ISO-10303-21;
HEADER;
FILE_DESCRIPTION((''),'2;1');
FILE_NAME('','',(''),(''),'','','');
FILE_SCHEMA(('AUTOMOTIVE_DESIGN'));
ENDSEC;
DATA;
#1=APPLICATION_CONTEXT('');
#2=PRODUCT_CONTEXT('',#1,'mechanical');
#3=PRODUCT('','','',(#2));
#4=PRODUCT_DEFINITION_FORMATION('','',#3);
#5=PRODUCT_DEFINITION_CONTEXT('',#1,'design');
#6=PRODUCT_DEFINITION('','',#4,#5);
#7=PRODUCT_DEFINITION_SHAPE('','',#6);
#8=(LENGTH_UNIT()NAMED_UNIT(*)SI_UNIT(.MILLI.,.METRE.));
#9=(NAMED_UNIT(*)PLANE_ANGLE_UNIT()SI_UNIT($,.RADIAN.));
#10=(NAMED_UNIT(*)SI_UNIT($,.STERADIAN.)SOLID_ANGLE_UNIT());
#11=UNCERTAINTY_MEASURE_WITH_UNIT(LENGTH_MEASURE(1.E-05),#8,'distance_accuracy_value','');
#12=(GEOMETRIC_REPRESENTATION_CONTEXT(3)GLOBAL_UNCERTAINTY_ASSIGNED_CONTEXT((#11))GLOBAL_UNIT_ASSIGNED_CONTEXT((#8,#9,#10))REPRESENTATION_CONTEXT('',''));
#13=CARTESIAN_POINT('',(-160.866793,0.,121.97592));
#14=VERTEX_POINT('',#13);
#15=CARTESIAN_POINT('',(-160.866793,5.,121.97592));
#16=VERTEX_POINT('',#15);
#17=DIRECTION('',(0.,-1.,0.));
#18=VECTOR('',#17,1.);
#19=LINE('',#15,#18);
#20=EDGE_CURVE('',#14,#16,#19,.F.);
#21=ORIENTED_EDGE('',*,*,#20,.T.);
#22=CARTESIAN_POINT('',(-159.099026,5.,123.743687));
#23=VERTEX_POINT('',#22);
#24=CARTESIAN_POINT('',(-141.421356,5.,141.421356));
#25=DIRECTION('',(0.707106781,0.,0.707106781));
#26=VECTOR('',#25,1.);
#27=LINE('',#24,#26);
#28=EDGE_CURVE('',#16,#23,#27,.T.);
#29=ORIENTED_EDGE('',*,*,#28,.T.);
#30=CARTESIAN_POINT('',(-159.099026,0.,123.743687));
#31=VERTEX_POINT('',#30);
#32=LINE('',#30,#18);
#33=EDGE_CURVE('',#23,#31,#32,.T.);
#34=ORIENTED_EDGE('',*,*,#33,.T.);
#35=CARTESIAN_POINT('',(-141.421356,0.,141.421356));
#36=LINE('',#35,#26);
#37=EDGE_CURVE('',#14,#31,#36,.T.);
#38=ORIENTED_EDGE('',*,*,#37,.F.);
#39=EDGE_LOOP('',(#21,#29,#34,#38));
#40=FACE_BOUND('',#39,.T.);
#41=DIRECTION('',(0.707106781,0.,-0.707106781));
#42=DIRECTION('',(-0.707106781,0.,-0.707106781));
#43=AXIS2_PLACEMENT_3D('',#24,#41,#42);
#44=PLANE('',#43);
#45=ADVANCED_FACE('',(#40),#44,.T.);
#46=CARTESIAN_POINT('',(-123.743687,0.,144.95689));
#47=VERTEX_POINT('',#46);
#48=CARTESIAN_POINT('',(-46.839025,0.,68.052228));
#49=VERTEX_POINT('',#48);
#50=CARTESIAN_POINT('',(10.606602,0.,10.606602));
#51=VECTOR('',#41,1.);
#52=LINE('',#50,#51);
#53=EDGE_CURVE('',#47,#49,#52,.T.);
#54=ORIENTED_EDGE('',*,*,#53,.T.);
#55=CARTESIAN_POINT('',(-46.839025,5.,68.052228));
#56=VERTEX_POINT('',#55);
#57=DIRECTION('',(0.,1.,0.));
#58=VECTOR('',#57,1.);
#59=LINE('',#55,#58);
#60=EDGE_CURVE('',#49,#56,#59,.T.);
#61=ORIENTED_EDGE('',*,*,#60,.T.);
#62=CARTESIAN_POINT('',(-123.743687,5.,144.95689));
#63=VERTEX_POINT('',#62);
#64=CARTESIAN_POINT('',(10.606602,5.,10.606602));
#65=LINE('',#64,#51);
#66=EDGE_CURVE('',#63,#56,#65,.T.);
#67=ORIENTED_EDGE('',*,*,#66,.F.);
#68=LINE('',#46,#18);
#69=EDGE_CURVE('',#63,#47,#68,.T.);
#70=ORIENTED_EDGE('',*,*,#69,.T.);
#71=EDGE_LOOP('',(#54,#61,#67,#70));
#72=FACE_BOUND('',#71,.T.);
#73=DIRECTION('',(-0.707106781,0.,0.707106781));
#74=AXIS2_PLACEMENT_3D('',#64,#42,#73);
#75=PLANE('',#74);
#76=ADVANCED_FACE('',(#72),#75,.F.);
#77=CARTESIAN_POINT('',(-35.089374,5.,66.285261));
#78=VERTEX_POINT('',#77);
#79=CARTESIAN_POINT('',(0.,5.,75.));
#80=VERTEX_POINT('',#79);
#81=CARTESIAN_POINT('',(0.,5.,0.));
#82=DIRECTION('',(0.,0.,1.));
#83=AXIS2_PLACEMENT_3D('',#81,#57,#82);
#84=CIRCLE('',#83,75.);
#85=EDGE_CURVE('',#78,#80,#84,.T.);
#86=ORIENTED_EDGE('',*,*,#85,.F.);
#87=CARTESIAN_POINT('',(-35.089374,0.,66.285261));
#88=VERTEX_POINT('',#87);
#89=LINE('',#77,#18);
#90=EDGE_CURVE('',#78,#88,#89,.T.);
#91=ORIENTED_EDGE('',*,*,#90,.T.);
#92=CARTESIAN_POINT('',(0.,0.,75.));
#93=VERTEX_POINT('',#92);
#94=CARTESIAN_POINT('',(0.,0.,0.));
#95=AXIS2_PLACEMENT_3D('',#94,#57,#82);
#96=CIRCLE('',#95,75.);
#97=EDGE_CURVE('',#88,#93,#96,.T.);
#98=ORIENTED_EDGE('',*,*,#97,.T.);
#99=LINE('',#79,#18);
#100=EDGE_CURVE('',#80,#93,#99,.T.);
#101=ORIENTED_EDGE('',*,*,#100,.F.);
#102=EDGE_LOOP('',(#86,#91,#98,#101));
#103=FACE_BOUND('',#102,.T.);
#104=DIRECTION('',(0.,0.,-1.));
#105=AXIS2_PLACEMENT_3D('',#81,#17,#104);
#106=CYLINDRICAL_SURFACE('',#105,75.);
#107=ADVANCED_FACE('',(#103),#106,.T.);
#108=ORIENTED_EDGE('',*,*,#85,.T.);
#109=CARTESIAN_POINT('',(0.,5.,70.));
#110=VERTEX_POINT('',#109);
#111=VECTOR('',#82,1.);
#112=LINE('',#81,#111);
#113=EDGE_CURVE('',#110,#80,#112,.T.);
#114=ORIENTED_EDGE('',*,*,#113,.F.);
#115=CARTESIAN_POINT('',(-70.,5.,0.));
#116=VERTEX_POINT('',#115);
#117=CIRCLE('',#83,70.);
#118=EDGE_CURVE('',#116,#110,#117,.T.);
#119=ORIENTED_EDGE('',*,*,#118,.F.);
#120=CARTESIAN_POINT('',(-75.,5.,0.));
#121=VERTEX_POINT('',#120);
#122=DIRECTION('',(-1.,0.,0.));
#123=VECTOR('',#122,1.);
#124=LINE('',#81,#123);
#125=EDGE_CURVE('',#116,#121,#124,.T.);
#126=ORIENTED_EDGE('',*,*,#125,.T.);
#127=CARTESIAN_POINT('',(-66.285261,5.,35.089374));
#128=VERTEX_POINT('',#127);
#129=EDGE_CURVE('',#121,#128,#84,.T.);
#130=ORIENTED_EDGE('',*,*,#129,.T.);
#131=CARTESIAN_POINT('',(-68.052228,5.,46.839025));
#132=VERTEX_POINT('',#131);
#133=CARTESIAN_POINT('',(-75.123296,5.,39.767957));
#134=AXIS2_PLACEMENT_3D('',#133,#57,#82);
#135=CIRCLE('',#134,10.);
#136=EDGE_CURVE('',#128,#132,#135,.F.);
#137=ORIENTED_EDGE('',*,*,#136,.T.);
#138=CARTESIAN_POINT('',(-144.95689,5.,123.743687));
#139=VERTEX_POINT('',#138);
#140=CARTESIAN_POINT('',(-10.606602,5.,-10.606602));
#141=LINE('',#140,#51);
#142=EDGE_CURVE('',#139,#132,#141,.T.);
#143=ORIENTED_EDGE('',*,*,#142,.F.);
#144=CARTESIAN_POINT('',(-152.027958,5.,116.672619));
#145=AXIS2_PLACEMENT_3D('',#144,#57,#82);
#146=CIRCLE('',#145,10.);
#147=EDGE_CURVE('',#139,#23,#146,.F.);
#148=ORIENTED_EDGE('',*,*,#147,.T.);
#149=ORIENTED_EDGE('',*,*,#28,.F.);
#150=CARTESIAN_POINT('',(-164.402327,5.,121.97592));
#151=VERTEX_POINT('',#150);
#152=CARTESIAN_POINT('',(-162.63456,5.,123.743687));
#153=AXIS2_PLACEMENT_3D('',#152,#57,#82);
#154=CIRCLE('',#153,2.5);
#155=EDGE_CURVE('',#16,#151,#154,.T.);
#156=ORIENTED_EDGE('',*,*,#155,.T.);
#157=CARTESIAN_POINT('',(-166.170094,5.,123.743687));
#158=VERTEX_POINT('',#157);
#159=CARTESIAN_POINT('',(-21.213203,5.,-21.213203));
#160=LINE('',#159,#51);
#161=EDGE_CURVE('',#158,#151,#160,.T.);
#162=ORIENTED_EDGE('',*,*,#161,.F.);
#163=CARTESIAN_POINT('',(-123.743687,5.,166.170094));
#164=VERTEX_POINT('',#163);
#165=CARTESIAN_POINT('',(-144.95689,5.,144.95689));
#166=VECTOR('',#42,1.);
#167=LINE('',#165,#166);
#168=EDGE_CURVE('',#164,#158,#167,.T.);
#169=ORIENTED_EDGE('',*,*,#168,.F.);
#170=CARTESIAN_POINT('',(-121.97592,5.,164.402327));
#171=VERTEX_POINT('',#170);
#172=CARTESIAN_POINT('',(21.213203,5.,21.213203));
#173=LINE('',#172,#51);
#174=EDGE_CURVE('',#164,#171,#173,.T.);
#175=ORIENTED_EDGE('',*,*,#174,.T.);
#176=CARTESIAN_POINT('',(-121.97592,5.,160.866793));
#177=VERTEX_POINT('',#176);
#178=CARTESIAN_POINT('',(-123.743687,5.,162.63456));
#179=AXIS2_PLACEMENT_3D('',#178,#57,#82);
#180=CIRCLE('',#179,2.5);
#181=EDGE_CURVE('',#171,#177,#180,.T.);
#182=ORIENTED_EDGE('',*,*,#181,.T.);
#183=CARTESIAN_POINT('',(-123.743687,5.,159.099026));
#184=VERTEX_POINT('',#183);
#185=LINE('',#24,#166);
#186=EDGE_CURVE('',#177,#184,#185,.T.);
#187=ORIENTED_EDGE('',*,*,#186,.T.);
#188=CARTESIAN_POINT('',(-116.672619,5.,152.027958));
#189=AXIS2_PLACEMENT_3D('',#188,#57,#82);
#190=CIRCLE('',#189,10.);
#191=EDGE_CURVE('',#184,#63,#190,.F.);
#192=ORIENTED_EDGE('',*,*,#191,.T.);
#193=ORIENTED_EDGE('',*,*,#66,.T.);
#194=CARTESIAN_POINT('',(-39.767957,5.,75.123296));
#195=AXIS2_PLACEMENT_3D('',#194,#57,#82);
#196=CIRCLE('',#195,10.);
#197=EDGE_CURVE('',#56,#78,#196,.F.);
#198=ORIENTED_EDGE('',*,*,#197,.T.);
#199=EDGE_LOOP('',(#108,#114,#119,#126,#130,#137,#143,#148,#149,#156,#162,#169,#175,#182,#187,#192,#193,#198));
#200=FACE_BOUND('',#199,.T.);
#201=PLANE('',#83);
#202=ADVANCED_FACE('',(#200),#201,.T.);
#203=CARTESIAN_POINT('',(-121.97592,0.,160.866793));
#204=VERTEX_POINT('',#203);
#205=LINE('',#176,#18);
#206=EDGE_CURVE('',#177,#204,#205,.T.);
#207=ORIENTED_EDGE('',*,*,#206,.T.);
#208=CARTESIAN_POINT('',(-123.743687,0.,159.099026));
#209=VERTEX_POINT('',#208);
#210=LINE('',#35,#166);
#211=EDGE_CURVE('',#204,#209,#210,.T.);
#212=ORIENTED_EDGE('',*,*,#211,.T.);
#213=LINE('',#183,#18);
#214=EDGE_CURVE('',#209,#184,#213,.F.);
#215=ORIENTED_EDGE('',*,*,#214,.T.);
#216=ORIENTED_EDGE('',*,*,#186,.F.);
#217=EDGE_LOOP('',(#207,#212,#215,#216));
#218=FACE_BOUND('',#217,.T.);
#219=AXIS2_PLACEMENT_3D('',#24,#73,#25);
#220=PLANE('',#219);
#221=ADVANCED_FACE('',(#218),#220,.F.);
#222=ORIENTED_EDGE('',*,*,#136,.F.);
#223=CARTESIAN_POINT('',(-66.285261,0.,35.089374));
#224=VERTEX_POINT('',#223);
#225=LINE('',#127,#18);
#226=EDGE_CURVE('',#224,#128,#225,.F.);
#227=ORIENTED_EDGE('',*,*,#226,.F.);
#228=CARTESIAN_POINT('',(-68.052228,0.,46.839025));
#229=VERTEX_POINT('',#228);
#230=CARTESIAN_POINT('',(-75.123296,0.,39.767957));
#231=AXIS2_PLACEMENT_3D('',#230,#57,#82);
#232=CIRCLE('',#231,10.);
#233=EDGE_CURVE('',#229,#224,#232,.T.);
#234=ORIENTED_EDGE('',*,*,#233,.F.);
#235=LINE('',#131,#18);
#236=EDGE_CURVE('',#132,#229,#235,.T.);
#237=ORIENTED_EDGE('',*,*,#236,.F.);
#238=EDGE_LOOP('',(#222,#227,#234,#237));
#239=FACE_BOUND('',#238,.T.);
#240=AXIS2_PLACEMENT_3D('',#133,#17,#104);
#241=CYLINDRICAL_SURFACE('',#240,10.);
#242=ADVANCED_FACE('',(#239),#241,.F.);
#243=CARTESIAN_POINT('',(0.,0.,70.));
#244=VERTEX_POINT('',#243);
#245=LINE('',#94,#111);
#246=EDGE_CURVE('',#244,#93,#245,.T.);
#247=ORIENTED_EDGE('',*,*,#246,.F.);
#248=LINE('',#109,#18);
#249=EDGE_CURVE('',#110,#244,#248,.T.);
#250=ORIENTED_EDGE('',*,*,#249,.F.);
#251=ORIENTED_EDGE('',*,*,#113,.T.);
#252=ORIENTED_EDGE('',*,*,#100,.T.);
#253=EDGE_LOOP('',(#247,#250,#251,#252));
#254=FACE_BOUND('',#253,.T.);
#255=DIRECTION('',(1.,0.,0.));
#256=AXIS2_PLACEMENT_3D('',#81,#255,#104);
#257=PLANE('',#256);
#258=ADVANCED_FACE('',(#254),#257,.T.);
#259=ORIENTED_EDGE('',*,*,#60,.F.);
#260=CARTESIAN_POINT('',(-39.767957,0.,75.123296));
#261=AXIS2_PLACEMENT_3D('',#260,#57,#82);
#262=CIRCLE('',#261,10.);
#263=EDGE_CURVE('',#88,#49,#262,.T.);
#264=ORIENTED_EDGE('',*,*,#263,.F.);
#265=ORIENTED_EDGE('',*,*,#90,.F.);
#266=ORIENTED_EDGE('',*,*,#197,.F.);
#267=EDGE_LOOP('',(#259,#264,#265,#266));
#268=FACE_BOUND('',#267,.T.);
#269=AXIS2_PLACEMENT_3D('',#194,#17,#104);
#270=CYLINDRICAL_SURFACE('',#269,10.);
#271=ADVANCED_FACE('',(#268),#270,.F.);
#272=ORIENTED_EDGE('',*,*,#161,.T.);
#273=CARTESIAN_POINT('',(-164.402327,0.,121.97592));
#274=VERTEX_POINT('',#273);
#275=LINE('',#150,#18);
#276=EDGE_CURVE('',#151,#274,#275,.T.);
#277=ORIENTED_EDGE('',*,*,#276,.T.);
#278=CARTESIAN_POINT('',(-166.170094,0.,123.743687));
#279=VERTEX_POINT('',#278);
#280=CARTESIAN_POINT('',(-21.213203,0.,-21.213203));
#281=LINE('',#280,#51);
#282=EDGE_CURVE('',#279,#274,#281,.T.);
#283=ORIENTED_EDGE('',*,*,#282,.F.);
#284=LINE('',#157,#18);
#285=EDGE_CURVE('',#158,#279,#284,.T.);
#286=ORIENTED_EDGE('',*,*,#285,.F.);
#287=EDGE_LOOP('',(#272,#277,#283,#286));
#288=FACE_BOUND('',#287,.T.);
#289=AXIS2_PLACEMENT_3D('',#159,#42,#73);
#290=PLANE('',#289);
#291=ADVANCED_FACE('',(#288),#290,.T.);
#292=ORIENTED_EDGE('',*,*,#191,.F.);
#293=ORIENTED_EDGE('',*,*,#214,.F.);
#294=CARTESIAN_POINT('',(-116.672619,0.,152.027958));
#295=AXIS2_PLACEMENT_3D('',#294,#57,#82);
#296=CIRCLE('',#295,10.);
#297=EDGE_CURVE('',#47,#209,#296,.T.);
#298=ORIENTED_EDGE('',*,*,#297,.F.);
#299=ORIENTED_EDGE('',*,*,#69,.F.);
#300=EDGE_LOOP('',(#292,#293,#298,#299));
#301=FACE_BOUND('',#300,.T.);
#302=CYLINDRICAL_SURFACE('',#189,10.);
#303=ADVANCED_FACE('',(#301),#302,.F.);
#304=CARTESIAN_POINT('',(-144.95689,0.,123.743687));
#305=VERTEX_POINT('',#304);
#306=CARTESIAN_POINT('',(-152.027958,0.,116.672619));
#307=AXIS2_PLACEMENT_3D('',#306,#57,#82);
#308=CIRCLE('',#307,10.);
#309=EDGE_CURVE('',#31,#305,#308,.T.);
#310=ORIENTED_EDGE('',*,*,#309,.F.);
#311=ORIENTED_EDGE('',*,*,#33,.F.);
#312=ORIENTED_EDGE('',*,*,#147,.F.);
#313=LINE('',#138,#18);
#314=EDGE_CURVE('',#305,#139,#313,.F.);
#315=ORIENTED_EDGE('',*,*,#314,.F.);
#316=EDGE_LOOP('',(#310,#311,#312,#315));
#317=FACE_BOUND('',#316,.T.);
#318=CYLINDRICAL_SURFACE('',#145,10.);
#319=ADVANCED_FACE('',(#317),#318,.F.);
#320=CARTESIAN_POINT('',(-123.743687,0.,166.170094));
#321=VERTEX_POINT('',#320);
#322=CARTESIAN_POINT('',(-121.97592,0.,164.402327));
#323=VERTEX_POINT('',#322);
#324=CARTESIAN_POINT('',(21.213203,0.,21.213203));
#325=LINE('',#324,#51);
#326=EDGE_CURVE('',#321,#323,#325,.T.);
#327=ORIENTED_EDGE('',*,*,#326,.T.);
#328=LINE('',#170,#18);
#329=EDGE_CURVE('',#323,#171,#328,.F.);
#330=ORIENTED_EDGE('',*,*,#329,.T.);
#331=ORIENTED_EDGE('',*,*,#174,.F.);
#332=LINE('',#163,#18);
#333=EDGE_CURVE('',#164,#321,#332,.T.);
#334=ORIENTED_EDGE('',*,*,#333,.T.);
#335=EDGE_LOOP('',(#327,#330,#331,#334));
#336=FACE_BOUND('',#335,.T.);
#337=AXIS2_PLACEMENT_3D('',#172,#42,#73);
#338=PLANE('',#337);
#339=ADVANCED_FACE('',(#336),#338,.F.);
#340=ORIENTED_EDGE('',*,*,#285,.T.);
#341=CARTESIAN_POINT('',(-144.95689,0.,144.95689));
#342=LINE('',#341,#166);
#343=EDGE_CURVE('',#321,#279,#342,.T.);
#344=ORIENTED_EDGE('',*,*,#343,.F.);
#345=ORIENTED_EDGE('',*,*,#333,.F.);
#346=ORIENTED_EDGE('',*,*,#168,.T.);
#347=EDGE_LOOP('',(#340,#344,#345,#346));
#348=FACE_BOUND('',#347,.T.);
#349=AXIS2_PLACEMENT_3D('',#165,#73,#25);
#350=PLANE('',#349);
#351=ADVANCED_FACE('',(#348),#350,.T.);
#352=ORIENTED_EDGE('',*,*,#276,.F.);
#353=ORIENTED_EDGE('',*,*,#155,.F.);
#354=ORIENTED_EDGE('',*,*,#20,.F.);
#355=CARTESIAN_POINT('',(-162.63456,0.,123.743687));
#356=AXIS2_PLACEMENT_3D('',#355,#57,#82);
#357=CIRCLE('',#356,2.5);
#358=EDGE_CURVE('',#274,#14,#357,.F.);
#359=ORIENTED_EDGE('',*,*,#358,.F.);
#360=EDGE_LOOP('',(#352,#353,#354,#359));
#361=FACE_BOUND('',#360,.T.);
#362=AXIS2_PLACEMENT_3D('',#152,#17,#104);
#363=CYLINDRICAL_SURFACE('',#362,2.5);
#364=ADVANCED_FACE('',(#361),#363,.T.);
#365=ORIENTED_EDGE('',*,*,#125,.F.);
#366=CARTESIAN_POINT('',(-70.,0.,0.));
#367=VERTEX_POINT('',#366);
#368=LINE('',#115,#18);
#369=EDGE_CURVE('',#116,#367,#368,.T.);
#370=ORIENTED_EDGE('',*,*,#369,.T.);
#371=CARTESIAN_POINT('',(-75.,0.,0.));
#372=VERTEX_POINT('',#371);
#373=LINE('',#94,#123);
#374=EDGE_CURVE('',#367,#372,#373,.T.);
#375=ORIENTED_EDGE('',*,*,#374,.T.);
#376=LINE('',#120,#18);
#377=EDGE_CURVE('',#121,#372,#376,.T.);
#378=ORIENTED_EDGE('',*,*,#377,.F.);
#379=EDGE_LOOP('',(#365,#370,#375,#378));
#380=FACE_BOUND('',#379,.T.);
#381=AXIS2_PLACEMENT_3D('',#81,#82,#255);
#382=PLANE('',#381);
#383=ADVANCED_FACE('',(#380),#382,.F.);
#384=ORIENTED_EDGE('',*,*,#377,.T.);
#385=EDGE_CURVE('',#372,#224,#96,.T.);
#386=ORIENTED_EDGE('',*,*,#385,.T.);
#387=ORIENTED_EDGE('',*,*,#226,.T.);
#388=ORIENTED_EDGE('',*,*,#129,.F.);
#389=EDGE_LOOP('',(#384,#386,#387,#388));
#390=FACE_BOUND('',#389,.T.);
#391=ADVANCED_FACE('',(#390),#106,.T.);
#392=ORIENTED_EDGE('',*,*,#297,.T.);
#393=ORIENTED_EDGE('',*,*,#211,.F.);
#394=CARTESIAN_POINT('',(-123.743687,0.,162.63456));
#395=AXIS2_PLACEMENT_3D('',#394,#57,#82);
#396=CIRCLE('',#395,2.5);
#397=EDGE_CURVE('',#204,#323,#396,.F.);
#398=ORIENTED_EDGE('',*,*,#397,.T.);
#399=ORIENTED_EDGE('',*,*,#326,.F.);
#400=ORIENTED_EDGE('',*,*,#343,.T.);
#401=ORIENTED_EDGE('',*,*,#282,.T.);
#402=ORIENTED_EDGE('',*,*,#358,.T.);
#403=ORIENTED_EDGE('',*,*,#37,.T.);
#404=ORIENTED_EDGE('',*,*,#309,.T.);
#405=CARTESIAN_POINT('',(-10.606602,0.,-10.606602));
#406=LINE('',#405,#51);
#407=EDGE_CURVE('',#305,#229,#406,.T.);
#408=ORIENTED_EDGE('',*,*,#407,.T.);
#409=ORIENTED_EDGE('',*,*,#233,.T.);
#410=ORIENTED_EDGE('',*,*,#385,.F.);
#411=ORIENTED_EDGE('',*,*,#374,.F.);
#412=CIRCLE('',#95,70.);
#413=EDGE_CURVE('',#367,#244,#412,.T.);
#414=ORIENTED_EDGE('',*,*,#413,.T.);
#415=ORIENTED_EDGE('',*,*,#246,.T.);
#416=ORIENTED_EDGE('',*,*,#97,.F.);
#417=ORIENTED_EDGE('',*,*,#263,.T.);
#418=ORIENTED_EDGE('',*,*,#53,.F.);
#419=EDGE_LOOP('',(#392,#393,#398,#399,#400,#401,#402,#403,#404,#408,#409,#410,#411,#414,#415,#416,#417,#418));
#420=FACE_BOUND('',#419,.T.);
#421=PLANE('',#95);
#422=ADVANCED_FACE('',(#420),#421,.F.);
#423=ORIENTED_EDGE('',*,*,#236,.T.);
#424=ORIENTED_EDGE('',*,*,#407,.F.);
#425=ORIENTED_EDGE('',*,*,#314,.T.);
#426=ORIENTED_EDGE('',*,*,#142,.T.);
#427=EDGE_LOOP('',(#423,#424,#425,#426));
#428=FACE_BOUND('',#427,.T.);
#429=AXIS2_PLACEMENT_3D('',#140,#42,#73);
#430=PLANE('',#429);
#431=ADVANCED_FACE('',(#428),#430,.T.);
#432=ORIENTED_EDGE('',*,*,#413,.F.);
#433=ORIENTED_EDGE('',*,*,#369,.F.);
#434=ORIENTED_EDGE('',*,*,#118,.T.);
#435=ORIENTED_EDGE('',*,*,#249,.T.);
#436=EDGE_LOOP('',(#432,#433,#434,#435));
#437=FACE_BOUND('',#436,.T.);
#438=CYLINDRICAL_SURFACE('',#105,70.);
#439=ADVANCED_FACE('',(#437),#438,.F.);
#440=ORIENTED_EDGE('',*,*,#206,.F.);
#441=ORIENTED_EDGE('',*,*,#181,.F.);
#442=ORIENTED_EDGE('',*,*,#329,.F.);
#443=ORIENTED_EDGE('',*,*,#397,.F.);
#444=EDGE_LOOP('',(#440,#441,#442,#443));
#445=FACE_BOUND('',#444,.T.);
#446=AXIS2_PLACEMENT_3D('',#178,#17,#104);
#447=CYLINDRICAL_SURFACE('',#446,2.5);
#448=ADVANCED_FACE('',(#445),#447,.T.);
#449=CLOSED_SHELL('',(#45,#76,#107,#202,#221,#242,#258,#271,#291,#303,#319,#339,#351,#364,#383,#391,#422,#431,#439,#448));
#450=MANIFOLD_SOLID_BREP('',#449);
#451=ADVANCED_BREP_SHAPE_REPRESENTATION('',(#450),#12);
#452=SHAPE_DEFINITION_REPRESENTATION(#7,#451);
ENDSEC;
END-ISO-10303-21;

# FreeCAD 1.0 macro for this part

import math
import FreeCAD as App
import Part
import Sketcher

V = App.Vector
Q = App.Units.Quantity


def edges_at(feature, points):
    """Names of the edges that pass closest to the given points."""
    edges = feature.Shape.Edges
    near = lambda p: min(range(len(edges)), key=lambda i: edges[i].distToShape(Part.Vertex(*p))[0])
    return sorted({f"Edge{near(p) + 1}" for p in points})

doc = App.newDocument("Part")
body = doc.addObject("PartDesign::Body", "Body")

sketch1 = body.newObject("Sketcher::SketchObject", "Sketch")
sketch1.AttachmentSupport = (doc.getObject("XZ_Plane"), [""])
sketch1.MapMode = "FlatFace"
sketch1.addGeometry([
    Part.LineSegment(V(-70, 0, 0), V(-75, 0, 0)),
    Part.ArcOfCircle(Part.Circle(V(0, 0, 0), V(0, 0, 1), 75), math.radians(147), math.radians(180)),
    Part.LineSegment(V(-63, 41, 0), V(-152, 131, 0)),
    Part.LineSegment(V(-152, 131, 0), V(-163, 120, 0)),
    Part.LineSegment(V(-163, 120, 0), V(-166, 124, 0)),
    Part.LineSegment(V(-166, 124, 0), V(-145, 145, 0)),
    Part.LineSegment(V(-145, 145, 0), V(-124, 166, 0)),
    Part.LineSegment(V(-124, 166, 0), V(-120, 163, 0)),
    Part.LineSegment(V(-120, 163, 0), V(-131, 152, 0)),
    Part.LineSegment(V(-131, 152, 0), V(-41, 63, 0)),
    Part.ArcOfCircle(Part.Circle(V(0, 0, 0), V(0, 0, 1), 75), math.radians(90), math.radians(123)),
    Part.LineSegment(V(0, 75, 0), V(0, 70, 0)),
    Part.ArcOfCircle(Part.Circle(V(0, 0, 0), V(0, 0, 1), 70), math.radians(90), math.radians(180)),
], False)
sketch1.addConstraint([
    Sketcher.Constraint("Coincident", 0, 2, 1, 2),
    Sketcher.Constraint("Coincident", 1, 1, 2, 1),
    Sketcher.Constraint("Coincident", 2, 2, 3, 1),
    Sketcher.Constraint("Coincident", 3, 2, 4, 1),
    Sketcher.Constraint("Coincident", 4, 2, 5, 1),
    Sketcher.Constraint("Coincident", 5, 2, 6, 1),
    Sketcher.Constraint("Coincident", 6, 2, 7, 1),
    Sketcher.Constraint("Coincident", 7, 2, 8, 1),
    Sketcher.Constraint("Coincident", 8, 2, 9, 1),
    Sketcher.Constraint("Coincident", 9, 2, 10, 2),
    Sketcher.Constraint("Coincident", 10, 1, 11, 1),
    Sketcher.Constraint("Coincident", 11, 2, 12, 1),
    Sketcher.Constraint("Coincident", 12, 2, 0, 1),
    Sketcher.Constraint("Horizontal", 0),
    Sketcher.Constraint("Vertical", 11),
    Sketcher.Constraint("Coincident", 1, 3, -1, 1),
    Sketcher.Constraint("Coincident", 10, 3, -1, 1),
    Sketcher.Constraint("Coincident", 12, 3, -1, 1),
    Sketcher.Constraint("Equal", 1, 10),
    Sketcher.Constraint("PointOnObject", 0, 2, -1),
    Sketcher.Constraint("PointOnObject", 10, 1, -2),
    Sketcher.Constraint("Perpendicular", 2, 3),
    Sketcher.Constraint("Perpendicular", 3, 4),
    Sketcher.Constraint("Perpendicular", 4, 5),
    Sketcher.Constraint("Parallel", 5, 6),
    Sketcher.Constraint("Perpendicular", 6, 7),
    Sketcher.Constraint("Perpendicular", 7, 8),
    Sketcher.Constraint("Perpendicular", 8, 9),
    Sketcher.Constraint("Equal", 5, 6),
    Sketcher.Constraint("Equal", 4, 7),
    Sketcher.Constraint("Equal", 3, 8),
    Sketcher.Constraint("Equal", 2, 9),
    Sketcher.Constraint("Radius", 1, Q("75 mm")),
    Sketcher.Constraint("Radius", 12, Q("70 mm")),
    Sketcher.Constraint("Angle", 2, Q("135 deg")),
    Sketcher.Constraint("Distance", 3, Q("15 mm")),
    Sketcher.Constraint("Distance", 4, Q("5 mm")),
    Sketcher.Constraint("Distance", 5, Q("30 mm")),
    Sketcher.Constraint("DistanceX", 3, 2, -1, 1, Q("162.63456 mm")),
])
pad1 = body.newObject("PartDesign::Pad", "Pad")
pad1.Profile = sketch1
pad1.Length = 5
pad1.Reversed = True
doc.recompute()

fillet = body.newObject("PartDesign::Fillet", "Fillet")
fillet.Base = (pad1, edges_at(pad1, [
    (-41.355, 2.5, 62.568),
    (-130.815, 2.5, 152.028),
    (-152.028, 2.5, 130.815),
    (-62.568, 2.5, 41.355),
]))
fillet.Radius = 10
doc.recompute()

fillet2 = body.newObject("PartDesign::Fillet", "Fillet001")
fillet2.Base = (fillet, edges_at(fillet, [(-120.208, 2.5, 162.635), (-162.635, 2.5, 120.208)]))
fillet2.Radius = 2.5

doc.recompute()
